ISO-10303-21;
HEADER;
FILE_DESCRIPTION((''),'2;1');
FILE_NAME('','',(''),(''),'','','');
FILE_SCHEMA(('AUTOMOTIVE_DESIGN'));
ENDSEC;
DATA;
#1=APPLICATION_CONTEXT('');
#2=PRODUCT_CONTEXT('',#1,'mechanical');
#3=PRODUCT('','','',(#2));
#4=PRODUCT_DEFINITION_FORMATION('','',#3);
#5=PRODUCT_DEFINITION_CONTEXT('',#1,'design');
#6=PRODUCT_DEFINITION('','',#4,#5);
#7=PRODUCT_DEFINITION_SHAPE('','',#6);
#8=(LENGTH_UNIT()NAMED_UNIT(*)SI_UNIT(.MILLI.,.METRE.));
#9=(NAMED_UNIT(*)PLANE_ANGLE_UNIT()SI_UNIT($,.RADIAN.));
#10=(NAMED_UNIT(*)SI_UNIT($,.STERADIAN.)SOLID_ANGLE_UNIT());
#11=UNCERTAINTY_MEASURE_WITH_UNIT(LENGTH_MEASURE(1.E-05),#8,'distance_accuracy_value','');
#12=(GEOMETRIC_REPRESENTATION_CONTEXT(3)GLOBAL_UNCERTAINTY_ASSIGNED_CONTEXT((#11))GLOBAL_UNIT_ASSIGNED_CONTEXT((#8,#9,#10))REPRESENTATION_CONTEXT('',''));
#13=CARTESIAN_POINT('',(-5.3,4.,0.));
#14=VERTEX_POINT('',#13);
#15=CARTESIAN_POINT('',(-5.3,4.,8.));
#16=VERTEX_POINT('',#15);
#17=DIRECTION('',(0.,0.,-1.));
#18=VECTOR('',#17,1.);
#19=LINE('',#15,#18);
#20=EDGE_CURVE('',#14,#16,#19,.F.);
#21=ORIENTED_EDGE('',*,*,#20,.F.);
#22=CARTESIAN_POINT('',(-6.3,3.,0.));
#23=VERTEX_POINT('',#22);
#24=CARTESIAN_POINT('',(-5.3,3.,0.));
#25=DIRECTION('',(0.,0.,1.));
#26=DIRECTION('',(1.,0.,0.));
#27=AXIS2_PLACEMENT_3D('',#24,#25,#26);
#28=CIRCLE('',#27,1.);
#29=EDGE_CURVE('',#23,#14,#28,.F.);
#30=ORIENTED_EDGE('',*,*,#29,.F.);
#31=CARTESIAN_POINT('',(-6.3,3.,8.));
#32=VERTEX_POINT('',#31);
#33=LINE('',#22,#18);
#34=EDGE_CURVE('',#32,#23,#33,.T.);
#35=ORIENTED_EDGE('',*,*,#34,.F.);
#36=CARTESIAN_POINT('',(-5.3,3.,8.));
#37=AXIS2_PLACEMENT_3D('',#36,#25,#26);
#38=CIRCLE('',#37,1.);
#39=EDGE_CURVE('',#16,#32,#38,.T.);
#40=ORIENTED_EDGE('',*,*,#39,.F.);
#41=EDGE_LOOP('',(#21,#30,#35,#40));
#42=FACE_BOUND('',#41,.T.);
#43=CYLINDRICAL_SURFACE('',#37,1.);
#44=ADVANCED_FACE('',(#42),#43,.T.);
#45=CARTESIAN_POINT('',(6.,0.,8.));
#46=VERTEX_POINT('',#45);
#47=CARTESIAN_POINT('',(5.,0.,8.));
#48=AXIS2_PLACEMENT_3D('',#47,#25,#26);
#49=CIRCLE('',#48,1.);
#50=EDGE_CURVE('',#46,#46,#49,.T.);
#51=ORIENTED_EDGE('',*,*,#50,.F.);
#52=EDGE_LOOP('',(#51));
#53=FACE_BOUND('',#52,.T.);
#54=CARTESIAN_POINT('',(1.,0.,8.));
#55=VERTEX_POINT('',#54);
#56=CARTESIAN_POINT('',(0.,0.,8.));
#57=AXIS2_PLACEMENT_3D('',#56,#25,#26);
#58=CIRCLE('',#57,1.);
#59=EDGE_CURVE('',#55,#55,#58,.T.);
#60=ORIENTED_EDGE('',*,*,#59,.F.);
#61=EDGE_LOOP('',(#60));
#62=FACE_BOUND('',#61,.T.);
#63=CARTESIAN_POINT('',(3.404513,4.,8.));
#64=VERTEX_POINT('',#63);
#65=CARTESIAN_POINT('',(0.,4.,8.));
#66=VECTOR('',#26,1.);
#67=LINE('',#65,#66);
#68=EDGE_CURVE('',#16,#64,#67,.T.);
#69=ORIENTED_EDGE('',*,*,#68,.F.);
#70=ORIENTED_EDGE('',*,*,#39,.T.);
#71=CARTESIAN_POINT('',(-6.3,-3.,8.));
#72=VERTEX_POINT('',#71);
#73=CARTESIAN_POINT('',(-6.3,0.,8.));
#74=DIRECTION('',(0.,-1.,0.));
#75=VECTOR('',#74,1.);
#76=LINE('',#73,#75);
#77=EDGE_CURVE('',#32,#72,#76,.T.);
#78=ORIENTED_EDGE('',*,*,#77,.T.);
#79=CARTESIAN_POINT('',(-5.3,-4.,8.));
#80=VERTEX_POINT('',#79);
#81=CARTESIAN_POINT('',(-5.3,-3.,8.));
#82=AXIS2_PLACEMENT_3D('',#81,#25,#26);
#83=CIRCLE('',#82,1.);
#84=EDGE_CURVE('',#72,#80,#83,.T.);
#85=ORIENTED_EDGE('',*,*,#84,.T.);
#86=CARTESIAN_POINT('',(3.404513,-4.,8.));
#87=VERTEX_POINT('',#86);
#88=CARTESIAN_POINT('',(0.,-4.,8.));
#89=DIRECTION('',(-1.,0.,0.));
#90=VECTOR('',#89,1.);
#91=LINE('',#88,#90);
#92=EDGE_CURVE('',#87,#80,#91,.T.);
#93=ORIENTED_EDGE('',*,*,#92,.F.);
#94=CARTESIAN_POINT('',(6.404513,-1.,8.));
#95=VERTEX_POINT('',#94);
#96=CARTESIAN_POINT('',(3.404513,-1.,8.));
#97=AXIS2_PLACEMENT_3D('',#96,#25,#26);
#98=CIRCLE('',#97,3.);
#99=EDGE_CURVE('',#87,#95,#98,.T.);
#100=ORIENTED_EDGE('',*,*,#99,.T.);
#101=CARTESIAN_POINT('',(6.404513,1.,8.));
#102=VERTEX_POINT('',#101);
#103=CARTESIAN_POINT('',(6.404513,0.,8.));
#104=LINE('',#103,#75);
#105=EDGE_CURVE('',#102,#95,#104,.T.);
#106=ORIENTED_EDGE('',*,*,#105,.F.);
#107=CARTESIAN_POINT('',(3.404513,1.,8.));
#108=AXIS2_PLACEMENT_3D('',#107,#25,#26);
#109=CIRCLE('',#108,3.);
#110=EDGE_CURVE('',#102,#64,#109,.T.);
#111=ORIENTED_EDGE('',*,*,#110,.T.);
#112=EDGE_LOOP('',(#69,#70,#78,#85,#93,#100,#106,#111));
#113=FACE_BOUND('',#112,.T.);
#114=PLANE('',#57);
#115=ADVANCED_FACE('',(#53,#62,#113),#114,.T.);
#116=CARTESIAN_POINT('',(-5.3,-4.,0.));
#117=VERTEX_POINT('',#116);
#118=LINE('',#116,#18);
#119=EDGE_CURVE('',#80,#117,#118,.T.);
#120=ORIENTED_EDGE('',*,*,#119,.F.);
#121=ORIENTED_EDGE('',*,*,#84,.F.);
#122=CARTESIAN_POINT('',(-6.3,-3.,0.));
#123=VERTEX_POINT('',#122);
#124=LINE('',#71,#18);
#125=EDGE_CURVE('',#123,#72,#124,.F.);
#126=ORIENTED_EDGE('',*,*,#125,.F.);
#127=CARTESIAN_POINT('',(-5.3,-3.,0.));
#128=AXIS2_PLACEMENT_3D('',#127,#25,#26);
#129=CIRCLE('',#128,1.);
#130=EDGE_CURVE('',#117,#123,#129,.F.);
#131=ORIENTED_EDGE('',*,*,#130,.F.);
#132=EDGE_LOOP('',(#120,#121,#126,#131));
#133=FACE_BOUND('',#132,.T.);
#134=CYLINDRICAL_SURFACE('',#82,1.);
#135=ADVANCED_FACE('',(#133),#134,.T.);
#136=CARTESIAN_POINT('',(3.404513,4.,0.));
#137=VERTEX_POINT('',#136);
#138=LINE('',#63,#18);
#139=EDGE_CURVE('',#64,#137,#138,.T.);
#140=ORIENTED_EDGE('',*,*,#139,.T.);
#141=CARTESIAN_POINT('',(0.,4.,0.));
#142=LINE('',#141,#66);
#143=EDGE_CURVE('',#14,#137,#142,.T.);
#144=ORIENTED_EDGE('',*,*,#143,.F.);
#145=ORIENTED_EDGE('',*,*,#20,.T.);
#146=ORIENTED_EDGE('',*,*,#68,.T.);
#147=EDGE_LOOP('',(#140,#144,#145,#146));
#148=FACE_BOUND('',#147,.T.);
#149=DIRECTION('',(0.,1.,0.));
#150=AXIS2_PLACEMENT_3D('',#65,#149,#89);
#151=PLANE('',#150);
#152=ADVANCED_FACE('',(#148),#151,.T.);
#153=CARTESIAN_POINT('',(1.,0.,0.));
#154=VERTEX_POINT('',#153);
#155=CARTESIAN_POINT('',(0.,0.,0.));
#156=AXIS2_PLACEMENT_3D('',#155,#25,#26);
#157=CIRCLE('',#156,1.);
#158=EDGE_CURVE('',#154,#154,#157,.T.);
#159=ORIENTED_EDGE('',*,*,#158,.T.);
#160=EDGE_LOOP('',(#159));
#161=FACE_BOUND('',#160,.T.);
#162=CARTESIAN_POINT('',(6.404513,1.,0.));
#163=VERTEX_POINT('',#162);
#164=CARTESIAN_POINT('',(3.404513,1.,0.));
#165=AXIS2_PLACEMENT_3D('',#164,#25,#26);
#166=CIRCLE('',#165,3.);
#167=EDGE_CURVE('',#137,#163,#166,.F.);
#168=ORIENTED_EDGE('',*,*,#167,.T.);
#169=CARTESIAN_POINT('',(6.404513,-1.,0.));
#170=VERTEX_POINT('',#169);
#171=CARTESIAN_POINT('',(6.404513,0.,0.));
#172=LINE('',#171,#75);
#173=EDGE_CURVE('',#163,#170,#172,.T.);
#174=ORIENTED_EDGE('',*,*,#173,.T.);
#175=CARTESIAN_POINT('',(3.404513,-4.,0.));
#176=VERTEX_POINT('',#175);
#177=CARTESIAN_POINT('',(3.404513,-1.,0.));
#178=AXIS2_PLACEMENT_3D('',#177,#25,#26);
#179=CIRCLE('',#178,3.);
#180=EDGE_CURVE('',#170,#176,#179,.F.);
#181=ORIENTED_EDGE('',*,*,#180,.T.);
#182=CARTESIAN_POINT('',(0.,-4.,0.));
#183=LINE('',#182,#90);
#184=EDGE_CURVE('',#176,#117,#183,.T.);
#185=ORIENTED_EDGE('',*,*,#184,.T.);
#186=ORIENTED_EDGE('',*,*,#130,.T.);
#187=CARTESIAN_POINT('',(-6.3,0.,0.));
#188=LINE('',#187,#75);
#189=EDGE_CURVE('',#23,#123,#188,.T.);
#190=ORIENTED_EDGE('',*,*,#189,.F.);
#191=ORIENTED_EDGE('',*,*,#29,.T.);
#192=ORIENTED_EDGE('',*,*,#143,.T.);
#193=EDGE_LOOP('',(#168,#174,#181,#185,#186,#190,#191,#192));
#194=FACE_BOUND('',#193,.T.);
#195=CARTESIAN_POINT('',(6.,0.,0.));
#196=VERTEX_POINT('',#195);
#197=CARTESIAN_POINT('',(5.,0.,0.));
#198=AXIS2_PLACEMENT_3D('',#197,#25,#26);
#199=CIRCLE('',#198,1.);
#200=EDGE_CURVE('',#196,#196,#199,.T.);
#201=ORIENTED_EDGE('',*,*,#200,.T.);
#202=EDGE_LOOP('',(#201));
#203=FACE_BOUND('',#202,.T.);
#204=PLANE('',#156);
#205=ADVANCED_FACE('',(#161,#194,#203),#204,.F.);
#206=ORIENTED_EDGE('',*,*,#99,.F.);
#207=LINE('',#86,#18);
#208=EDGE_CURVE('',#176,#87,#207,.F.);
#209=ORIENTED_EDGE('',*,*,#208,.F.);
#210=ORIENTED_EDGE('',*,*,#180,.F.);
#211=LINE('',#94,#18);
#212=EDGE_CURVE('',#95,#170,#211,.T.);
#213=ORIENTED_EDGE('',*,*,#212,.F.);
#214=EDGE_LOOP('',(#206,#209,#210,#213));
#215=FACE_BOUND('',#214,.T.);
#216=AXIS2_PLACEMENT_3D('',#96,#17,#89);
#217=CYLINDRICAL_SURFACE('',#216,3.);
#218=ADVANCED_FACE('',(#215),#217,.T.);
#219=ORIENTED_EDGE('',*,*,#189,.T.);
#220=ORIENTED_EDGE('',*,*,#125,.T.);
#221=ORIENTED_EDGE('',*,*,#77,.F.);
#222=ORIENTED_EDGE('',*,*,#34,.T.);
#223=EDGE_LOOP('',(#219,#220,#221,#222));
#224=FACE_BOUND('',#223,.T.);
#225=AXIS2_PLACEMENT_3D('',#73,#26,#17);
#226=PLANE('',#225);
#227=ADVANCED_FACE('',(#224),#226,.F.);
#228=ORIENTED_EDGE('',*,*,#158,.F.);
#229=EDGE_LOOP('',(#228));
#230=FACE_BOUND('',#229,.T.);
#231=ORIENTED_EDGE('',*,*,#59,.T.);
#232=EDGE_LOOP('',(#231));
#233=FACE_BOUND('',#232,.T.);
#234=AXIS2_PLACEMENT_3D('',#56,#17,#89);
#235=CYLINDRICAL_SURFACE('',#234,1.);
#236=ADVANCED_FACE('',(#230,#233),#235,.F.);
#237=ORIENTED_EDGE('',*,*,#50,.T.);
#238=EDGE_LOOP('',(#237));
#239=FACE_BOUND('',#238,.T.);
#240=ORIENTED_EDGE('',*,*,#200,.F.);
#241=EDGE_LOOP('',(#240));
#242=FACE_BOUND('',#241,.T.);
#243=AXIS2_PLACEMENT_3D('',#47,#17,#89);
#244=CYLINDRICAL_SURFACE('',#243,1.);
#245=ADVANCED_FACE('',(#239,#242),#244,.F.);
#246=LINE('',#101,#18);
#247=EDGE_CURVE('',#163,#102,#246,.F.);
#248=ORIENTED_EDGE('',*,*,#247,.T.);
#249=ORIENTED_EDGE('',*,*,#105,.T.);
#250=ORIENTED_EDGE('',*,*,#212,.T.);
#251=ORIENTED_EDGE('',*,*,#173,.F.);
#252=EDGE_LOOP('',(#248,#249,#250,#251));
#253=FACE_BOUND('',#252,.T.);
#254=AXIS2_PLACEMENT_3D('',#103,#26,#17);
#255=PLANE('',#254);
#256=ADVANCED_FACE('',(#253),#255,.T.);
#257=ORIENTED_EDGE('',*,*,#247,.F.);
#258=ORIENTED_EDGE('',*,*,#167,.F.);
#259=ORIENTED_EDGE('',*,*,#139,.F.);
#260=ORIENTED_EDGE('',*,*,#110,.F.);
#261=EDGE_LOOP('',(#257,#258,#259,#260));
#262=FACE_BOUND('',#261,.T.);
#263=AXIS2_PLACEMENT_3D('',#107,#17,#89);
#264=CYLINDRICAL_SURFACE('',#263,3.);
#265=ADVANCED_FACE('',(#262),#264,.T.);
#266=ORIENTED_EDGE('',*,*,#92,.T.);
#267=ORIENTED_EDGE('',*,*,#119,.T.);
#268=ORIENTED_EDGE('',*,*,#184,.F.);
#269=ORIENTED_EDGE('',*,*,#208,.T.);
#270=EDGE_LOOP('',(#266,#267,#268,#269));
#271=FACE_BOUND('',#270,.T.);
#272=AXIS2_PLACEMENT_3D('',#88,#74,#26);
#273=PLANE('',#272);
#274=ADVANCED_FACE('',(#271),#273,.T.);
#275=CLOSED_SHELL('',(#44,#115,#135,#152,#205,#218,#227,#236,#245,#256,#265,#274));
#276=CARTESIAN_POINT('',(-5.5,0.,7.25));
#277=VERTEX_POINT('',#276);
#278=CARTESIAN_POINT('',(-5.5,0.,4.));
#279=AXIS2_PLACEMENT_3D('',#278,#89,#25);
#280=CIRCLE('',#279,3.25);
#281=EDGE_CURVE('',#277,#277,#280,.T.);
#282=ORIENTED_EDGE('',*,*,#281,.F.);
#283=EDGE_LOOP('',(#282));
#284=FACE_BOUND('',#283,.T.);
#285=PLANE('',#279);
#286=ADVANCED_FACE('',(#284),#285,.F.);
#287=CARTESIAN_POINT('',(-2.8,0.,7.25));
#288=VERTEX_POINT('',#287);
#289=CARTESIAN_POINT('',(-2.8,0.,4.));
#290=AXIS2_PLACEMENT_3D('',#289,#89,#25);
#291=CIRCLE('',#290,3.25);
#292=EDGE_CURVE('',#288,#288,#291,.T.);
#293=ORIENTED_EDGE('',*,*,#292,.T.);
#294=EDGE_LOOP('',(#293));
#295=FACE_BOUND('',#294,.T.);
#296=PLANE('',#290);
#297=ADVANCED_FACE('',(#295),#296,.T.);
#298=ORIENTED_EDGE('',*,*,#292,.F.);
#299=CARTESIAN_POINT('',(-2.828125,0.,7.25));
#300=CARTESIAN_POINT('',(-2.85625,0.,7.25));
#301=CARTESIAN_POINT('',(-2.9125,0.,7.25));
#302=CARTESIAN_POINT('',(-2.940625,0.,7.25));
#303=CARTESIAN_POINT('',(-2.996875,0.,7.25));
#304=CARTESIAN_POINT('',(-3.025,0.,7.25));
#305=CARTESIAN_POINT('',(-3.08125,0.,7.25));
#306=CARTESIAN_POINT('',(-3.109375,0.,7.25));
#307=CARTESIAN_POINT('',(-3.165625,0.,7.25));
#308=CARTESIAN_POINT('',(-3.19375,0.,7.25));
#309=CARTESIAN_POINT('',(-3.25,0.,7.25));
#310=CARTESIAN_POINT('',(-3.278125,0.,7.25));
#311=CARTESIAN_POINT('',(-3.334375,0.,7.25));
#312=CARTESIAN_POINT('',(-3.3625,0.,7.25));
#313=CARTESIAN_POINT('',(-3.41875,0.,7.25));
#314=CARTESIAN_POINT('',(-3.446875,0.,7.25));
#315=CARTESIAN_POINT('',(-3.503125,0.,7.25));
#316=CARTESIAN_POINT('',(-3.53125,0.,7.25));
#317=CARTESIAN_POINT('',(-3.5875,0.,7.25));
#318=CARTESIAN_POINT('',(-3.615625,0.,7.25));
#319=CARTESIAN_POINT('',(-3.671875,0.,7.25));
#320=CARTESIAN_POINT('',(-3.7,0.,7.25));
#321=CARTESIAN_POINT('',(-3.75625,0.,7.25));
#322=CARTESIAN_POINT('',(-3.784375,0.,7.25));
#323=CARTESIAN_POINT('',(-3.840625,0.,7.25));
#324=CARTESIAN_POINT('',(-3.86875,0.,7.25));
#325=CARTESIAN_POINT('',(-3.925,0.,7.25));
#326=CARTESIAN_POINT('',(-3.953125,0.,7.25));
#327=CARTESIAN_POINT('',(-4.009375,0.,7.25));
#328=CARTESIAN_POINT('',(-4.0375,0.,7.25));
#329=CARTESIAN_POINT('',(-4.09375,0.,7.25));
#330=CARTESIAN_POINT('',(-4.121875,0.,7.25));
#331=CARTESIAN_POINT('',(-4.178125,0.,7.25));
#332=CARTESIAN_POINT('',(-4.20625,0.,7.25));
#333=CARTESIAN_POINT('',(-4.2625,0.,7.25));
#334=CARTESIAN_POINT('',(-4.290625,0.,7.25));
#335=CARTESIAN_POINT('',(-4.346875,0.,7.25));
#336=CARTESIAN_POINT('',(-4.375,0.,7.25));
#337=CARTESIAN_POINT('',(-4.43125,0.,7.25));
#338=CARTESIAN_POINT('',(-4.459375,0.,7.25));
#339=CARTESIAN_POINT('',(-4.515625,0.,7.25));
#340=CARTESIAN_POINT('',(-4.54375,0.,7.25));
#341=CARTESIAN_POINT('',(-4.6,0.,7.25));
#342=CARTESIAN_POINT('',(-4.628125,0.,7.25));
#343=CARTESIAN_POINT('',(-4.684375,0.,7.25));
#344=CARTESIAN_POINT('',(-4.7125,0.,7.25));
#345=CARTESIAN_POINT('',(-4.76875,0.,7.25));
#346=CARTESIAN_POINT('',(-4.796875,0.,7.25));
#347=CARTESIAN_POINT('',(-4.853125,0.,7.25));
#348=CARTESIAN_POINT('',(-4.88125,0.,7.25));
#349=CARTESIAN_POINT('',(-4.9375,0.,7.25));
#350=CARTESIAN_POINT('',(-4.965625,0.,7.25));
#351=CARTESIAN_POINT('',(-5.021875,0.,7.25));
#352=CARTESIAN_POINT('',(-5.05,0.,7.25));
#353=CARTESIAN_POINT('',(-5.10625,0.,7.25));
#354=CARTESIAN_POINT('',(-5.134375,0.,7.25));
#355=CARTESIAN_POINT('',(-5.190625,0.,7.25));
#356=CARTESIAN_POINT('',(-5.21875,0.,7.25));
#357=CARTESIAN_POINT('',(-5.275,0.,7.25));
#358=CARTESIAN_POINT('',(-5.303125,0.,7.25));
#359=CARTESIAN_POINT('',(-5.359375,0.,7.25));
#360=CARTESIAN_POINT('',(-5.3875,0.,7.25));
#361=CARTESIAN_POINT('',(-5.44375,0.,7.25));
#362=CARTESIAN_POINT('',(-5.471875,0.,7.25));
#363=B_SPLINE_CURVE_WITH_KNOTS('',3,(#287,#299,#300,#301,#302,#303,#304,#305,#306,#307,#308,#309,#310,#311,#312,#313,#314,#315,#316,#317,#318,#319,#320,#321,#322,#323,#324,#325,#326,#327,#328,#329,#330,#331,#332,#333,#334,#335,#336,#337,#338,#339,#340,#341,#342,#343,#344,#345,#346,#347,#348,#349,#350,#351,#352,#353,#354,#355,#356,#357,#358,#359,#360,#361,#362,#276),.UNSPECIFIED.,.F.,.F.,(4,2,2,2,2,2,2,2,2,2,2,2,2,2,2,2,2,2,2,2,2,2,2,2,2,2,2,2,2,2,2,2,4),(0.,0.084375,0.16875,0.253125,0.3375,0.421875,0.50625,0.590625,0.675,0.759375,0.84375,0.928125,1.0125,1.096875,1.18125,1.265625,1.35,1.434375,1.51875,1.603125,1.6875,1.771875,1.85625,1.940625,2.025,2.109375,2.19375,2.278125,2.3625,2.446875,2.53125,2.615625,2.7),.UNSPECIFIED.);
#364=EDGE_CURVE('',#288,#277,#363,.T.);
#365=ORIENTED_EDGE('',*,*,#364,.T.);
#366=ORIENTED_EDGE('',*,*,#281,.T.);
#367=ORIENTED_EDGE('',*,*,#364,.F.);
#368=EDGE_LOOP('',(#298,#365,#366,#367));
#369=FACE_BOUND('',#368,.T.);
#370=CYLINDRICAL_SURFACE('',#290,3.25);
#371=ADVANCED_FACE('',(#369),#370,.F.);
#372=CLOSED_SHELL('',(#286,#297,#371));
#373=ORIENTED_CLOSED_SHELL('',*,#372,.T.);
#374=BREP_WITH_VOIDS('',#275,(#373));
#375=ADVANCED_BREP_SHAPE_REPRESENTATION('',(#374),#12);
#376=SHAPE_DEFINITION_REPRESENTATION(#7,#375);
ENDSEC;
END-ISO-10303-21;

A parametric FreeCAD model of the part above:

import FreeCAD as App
import Part
import Sketcher


def edges_at(feature, points):
    """Names of the edges that pass closest to the given points."""
    edges = feature.Shape.Edges
    near = lambda p: min(range(len(edges)), key=lambda i: edges[i].distToShape(Part.Vertex(*p))[0])
    return sorted({f"Edge{near(p) + 1}" for p in points})

doc = App.newDocument("Part")
params = doc.addObject("Spreadsheet::Sheet", "Params")
for row, (alias, value) in enumerate([
    ("sketch1_diameter", "2 mm"),
    ("sketch1_height", "8 mm"),
    ("pad1_length", "8 mm"),
    ("sketch2_diameter", "6.5 mm"),
    ("pocket1_length", "2.7 mm"),
    ("fillet_radius", "1 mm"),
    ("fillet2_radius", "3 mm"),
], start=1):
    params.set(f"A{row}", alias)
    params.set(f"B{row}", "=" + value)
    params.setAlias(f"B{row}", alias)

body = doc.addObject("PartDesign::Body", "Body")

# Sketch on XY plane
sketch1 = body.newObject("Sketcher::SketchObject", "Sketch")
sketch1.AttachmentSupport = (doc.getObject("XY_Plane"), [""])
sketch1.MapMode = "FlatFace"
sketch1.addGeometry([
    Part.LineSegment(App.Vector(-6.3, 4, 0), App.Vector(-6.3, -4, 0)),  # 0
    Part.LineSegment(App.Vector(-6.3, -4, 0), App.Vector(6.4, -4, 0)),  # 1
    Part.LineSegment(App.Vector(6.4, -4, 0), App.Vector(6.4, 4, 0)),  # 2
    Part.LineSegment(App.Vector(6.4, 4, 0), App.Vector(-6.3, 4, 0)),  # 3
    Part.Circle(App.Vector(0, 0, 0), App.Vector(0, 0, 1), 1),  # 4
    Part.Circle(App.Vector(5, 0, 0), App.Vector(0, 0, 1), 1),  # 5
], False)
sketch1.addConstraint([
    Sketcher.Constraint("Coincident", 0, 2, 1, 1),
    Sketcher.Constraint("Coincident", 1, 2, 2, 1),
    Sketcher.Constraint("Coincident", 2, 2, 3, 1),
    Sketcher.Constraint("Coincident", 3, 2, 0, 1),
    Sketcher.Constraint("Vertical", 0),
    Sketcher.Constraint("Horizontal", 1),
    Sketcher.Constraint("Vertical", 2),
    Sketcher.Constraint("Horizontal", 3),
    Sketcher.Constraint("Coincident", 4, 3, -1, 1),
    Sketcher.Constraint("Equal", 4, 5),
    Sketcher.Constraint("PointOnObject", 5, 3, -1),
    Sketcher.Constraint("Diameter", 4, 2.0),
    Sketcher.Constraint("DistanceY", 0, 2, 0, 1, 8.0),
    Sketcher.Constraint("DistanceX", -1, 1, 5, 3, 5.0),
    Sketcher.Constraint("DistanceY", 0, 2, -1, 1, 4.0),
    Sketcher.Constraint("DistanceX", 0, 2, -1, 1, 6.3),
    Sketcher.Constraint("DistanceX", 1, 1, 1, 2, 12.704513),
])
sketch1.setExpression("Constraints[11]", "Params.sketch1_diameter")
sketch1.setExpression("Constraints[12]", "Params.sketch1_height")
pad1 = body.newObject("PartDesign::Pad", "Pad")
pad1.Profile = sketch1
pad1.setExpression("Length", "Params.pad1_length")

# Sketch on YZ plane
sketch2 = body.newObject("Sketcher::SketchObject", "Sketch001")
sketch2.AttachmentSupport = (doc.getObject("YZ_Plane"), [""])
sketch2.MapMode = "FlatFace"
sketch2.AttachmentOffset = App.Placement(App.Vector(0, 0, -5.5), App.Rotation())
sketch2.addGeometry(Part.Circle(App.Vector(0, 4, 0), App.Vector(0, 0, 1), 3.2), False)
sketch2.addConstraint([
    Sketcher.Constraint("PointOnObject", 0, 3, -2),
    Sketcher.Constraint("Diameter", 0, 6.5),
    Sketcher.Constraint("DistanceY", -1, 1, 0, 3, 4.0),
])
sketch2.setExpression("Constraints[1]", "Params.sketch2_diameter")
pocket1 = body.newObject("PartDesign::Pocket", "Pocket")
pocket1.Profile = sketch2
pocket1.setExpression("Length", "Params.pocket1_length")
pocket1.Reversed = True
doc.recompute()

fillet = body.newObject("PartDesign::Fillet", "Fillet")
fillet.Base = (pocket1, edges_at(pocket1, [(-6.3, -4, 4), (-6.3, 4, 4)]))
fillet.setExpression("Radius", "Params.fillet_radius")
doc.recompute()

fillet2 = body.newObject("PartDesign::Fillet", "Fillet001")
fillet2.Base = (fillet, edges_at(fillet, [(6.405, 4, 4), (6.405, -4, 4)]))
fillet2.setExpression("Radius", "Params.fillet2_radius")

doc.recompute()
